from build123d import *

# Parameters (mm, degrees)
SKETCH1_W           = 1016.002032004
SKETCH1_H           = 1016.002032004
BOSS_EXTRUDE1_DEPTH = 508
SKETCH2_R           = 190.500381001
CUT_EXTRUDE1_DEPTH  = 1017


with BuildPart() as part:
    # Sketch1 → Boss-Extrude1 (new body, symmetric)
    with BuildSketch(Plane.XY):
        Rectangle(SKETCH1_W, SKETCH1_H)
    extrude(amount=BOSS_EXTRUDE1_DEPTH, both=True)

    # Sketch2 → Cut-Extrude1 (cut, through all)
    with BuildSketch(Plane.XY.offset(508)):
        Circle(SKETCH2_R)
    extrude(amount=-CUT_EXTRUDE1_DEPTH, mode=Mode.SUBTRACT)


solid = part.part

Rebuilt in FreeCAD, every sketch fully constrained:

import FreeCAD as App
import Part
import Sketcher

doc = App.newDocument("Part")
body = doc.addObject("PartDesign::Body", "Body")

sketch1 = doc.addObject("Sketcher::SketchObject", "Sketch")
body.addObject(sketch1)
sketch1.AttachmentSupport = (doc.XY_Plane, [""])
sketch1.MapMode = "FlatFace"
sketch1.addGeometry([
    Part.LineSegment(App.Vector(-508.001016, 508.001016, 0), App.Vector(-508.001016, -508.001016, 0)),
    Part.LineSegment(App.Vector(-508.001016, -508.001016, 0), App.Vector(508.001016, -508.001016, 0)),
    Part.LineSegment(App.Vector(508.001016, -508.001016, 0), App.Vector(508.001016, 508.001016, 0)),
    Part.LineSegment(App.Vector(508.001016, 508.001016, 0), App.Vector(-508.001016, 508.001016, 0)),
], False)
sketch1.addConstraint([
    Sketcher.Constraint("Coincident", 0, 2, 1, 1),
    Sketcher.Constraint("Coincident", 1, 2, 2, 1),
    Sketcher.Constraint("Coincident", 2, 2, 3, 1),
    Sketcher.Constraint("Coincident", 3, 2, 0, 1),
    Sketcher.Constraint("Vertical", 0),
    Sketcher.Constraint("Horizontal", 1),
    Sketcher.Constraint("Vertical", 2),
    Sketcher.Constraint("Horizontal", 3),
    Sketcher.Constraint("Symmetric", 0, 2, 2, 2, -1, 1),
    Sketcher.Constraint("Equal", 3, 0),
    Sketcher.Constraint("DistanceX", 1, 1, 1, 2, 1016.002032),
])
pad1 = doc.addObject("PartDesign::Pad", "Pad")
body.addObject(pad1)
pad1.Profile = sketch1
pad1.Length = 1016
pad1.Midplane = True

sketch2 = doc.addObject("Sketcher::SketchObject", "Sketch001")
body.addObject(sketch2)
sketch2.AttachmentSupport = (doc.XY_Plane, [""])
sketch2.MapMode = "FlatFace"
sketch2.AttachmentOffset = App.Placement(App.Vector(0, 0, 508), App.Rotation())
sketch2.addGeometry(Part.Circle(App.Vector(0, 0, 0), App.Vector(0, 0, 1), 190.500381), False)
sketch2.addConstraint([
    Sketcher.Constraint("Coincident", 0, 3, -1, 1),
    Sketcher.Constraint("Diameter", 0, 381.000762),
])
pocket1 = doc.addObject("PartDesign::Pocket", "Pocket")
body.addObject(pocket1)
pocket1.Profile = sketch2
pocket1.Type = "ThroughAll"

doc.recompute()
